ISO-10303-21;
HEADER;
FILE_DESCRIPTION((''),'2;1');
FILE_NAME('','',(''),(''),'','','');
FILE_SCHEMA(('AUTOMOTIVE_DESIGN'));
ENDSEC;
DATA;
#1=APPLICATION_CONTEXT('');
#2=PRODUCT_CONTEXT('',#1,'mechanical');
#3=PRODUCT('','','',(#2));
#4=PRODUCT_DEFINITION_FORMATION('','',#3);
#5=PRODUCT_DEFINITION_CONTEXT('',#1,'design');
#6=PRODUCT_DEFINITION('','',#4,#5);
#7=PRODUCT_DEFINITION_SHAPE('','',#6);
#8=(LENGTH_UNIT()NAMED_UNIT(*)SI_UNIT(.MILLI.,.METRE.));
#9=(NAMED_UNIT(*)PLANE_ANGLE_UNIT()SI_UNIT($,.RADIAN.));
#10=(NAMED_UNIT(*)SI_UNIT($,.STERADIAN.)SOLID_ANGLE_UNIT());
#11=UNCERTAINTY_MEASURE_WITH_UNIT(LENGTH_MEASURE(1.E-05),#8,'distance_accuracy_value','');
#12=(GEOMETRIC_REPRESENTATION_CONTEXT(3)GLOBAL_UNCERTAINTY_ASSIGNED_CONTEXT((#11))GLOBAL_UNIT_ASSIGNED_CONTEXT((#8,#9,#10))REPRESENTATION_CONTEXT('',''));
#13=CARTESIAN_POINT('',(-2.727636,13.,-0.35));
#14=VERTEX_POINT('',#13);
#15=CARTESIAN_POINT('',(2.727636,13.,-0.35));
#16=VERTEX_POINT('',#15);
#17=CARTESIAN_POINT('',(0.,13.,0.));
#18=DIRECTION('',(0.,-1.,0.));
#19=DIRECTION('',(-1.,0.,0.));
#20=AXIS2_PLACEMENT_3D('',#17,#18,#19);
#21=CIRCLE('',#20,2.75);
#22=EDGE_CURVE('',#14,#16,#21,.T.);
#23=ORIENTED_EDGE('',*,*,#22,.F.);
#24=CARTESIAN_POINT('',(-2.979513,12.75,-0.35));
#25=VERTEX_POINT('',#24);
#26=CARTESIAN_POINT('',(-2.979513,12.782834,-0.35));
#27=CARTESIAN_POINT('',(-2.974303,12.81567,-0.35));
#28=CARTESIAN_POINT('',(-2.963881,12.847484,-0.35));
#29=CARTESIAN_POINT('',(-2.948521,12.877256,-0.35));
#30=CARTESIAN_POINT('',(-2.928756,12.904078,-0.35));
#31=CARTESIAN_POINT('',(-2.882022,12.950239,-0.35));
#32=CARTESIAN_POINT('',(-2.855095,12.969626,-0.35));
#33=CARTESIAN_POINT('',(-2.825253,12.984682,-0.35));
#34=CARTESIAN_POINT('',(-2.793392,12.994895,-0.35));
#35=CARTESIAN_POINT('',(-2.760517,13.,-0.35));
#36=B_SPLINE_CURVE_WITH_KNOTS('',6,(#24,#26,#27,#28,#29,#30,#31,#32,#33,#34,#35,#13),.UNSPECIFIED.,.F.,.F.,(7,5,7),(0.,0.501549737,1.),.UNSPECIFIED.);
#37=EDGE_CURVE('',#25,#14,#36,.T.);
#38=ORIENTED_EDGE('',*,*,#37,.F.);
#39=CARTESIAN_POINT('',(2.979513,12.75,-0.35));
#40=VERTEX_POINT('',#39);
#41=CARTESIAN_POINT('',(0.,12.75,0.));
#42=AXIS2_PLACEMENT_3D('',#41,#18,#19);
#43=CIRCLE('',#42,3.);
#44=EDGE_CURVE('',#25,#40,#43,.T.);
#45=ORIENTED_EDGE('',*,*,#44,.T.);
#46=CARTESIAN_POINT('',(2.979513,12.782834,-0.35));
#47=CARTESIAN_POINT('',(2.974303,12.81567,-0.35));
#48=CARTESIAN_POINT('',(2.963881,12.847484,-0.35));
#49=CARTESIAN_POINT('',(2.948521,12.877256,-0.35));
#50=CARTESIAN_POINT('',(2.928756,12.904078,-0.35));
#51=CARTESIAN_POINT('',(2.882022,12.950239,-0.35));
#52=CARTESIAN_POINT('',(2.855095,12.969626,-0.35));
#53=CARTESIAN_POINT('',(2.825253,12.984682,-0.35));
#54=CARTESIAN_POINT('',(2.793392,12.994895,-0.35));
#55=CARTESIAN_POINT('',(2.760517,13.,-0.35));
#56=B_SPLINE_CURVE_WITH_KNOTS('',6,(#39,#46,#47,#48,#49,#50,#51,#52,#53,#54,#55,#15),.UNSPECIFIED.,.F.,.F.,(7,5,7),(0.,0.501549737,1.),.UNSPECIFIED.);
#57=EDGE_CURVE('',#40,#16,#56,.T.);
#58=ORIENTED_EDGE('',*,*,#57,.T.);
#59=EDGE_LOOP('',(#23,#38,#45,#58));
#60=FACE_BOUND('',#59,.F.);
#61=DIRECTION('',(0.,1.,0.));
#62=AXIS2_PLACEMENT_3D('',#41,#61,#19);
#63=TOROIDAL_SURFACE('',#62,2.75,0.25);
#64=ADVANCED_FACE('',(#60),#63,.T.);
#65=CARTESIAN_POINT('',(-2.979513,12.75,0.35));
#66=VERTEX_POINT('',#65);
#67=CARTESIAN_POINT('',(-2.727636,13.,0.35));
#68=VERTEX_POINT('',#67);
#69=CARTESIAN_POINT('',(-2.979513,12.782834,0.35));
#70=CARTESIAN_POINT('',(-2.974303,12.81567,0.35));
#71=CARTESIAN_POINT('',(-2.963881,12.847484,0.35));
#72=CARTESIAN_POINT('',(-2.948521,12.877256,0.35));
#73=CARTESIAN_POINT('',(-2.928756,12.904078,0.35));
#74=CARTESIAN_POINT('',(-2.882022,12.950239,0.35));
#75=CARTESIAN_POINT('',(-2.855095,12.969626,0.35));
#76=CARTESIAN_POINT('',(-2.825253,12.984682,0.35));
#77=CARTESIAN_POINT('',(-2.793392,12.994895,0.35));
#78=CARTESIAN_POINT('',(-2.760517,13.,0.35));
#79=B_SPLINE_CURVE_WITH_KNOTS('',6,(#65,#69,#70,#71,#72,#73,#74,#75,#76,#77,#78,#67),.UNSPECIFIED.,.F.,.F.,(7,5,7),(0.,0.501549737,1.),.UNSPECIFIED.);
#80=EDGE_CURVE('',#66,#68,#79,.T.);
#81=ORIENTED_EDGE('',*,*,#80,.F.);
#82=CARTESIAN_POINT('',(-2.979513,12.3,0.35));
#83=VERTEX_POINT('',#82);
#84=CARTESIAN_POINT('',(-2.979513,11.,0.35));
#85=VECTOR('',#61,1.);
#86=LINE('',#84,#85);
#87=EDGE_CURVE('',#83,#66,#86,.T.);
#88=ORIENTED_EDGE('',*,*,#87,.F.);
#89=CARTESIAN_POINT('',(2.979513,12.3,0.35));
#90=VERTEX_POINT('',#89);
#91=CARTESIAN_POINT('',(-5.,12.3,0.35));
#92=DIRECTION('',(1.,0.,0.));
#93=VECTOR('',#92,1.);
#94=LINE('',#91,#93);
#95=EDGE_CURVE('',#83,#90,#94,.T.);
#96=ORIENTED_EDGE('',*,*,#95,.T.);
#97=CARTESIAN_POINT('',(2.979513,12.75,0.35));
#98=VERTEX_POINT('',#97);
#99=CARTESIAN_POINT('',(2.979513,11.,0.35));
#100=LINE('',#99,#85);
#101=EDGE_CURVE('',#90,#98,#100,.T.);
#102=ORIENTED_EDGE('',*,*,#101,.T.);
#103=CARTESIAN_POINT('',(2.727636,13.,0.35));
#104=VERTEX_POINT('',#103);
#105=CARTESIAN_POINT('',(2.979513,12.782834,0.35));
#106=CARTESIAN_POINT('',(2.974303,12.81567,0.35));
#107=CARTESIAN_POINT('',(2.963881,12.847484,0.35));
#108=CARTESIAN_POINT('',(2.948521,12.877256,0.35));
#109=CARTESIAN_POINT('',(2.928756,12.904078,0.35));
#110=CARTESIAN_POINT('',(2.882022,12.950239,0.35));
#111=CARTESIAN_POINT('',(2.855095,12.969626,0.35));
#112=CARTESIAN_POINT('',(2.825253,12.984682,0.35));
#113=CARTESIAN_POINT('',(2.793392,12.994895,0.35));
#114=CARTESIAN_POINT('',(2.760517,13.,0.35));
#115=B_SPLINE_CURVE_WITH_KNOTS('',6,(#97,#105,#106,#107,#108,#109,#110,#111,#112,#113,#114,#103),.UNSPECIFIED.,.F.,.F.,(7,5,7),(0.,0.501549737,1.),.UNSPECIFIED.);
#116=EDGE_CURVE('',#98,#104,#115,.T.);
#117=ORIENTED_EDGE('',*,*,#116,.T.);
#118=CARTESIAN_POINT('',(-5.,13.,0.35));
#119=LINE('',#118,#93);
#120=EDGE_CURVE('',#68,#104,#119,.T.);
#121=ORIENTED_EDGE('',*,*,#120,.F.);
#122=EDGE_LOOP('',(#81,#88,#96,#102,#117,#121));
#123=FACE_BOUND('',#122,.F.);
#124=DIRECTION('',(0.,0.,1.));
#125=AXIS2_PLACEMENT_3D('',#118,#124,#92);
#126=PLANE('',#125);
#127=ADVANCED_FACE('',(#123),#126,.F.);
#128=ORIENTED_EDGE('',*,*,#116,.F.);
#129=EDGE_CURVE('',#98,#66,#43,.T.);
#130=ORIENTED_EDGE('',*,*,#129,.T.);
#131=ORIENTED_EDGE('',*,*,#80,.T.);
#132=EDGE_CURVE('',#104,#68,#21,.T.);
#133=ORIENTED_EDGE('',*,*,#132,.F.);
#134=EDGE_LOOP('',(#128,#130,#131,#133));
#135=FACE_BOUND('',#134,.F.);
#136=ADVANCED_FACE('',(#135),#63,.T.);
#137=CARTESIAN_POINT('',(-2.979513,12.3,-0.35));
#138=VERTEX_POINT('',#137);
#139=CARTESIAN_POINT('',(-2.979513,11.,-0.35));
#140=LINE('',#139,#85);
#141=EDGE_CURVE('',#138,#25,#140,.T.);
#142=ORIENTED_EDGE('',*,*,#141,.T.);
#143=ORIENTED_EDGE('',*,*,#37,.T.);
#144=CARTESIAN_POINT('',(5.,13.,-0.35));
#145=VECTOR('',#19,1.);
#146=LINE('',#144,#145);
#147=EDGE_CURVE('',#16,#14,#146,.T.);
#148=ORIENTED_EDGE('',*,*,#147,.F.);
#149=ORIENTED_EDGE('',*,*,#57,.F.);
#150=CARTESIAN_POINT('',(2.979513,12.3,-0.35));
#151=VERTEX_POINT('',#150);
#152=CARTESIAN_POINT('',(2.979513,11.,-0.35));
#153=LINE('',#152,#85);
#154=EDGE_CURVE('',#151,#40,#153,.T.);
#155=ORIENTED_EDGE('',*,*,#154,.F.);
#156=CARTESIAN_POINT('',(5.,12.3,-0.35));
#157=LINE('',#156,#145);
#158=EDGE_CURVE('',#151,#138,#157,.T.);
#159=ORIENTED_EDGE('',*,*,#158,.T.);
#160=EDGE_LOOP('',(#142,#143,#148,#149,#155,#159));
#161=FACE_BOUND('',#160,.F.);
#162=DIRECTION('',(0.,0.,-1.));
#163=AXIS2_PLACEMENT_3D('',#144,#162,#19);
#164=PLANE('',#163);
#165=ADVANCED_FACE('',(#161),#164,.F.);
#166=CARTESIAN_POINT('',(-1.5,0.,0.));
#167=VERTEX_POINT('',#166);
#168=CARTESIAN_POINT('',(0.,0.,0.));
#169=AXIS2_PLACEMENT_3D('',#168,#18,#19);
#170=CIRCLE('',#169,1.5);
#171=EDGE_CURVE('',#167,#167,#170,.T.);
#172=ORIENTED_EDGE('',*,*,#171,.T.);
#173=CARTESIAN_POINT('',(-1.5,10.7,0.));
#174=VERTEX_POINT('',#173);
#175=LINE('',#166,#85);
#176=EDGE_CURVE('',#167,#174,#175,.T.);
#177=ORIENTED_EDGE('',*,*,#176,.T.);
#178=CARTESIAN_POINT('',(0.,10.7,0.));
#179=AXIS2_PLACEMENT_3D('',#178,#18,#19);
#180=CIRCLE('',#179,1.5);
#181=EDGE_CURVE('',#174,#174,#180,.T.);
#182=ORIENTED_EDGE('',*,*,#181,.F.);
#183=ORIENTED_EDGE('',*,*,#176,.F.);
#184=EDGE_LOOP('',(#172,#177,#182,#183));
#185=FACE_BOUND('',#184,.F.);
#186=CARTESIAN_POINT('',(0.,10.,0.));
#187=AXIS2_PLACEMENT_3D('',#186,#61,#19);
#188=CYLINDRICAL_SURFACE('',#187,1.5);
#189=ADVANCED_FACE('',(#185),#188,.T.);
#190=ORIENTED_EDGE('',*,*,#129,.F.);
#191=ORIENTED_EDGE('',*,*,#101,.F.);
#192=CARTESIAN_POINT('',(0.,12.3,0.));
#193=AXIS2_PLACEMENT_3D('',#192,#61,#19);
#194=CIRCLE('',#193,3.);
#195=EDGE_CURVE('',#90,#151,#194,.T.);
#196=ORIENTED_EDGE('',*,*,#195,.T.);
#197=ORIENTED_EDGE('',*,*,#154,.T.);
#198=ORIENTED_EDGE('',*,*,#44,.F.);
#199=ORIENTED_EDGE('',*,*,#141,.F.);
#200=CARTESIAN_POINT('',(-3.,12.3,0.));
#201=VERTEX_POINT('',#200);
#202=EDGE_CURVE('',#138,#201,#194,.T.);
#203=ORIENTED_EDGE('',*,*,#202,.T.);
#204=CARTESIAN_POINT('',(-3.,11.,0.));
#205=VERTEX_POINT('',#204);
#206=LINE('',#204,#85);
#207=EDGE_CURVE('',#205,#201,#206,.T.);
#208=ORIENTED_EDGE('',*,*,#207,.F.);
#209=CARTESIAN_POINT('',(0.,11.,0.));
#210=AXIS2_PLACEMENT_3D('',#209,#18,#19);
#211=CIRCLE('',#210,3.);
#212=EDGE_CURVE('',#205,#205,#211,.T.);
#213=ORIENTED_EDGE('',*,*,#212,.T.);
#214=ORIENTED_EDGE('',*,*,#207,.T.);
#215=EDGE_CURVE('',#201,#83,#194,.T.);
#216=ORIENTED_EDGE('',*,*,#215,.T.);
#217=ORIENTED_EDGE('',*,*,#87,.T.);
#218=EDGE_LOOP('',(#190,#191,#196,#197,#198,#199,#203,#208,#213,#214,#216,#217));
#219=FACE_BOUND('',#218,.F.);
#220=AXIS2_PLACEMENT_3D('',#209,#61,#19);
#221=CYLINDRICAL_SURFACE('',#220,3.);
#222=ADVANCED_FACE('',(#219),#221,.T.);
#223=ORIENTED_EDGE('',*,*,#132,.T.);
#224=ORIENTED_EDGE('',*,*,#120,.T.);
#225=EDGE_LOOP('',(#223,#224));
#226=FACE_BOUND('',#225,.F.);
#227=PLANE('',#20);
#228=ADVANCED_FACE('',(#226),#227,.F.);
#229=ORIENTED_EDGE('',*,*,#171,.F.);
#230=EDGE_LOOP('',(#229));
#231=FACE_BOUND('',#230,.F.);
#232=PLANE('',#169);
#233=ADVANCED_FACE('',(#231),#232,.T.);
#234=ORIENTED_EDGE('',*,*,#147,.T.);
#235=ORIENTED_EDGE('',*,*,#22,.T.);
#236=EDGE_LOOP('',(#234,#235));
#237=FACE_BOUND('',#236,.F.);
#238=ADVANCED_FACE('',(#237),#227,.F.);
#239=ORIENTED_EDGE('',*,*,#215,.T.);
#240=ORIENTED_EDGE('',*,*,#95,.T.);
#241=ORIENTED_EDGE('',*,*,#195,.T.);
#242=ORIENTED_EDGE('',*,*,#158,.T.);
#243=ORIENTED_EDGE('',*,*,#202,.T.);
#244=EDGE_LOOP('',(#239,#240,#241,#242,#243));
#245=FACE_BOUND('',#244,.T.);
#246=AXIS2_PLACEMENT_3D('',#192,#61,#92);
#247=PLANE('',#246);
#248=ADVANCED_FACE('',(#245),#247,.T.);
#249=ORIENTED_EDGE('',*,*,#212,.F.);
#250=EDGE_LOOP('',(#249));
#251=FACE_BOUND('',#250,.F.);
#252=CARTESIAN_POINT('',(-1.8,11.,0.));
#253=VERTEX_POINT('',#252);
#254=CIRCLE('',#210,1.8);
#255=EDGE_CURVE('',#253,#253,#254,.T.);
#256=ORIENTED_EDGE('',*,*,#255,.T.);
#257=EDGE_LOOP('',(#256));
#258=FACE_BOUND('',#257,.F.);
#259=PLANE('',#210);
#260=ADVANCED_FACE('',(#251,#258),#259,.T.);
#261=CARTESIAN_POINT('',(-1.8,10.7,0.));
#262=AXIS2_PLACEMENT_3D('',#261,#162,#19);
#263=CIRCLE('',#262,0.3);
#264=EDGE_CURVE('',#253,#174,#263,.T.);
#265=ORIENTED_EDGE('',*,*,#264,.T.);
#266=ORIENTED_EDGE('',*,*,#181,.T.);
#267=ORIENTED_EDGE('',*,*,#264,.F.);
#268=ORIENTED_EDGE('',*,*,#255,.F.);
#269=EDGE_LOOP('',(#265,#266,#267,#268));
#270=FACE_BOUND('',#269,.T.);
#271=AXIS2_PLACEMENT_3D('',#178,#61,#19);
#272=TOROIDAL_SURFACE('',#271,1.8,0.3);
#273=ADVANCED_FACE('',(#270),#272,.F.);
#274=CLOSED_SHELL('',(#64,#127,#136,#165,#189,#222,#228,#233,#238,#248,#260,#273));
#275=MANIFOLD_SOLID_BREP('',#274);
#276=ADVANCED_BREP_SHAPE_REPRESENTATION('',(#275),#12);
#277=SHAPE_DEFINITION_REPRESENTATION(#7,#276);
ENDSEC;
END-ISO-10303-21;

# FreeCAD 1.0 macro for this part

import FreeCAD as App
import Part
import Sketcher
from FreeCAD import Vector


def edges_at(feature, points):
    """Names of the edges that pass closest to the given points."""
    edges = feature.Shape.Edges
    near = lambda p: min(range(len(edges)), key=lambda i: edges[i].distToShape(Part.Vertex(*p))[0])
    return sorted({f"Edge{near(p) + 1}" for p in points})

doc = App.newDocument("Part")
body = doc.addObject("PartDesign::Body", "Body")

# Sketch on XY plane
sketch1 = doc.addObject("Sketcher::SketchObject", "Sketch")
body.addObject(sketch1)
sketch1.AttachmentSupport = (doc.XY_Plane, [""])
sketch1.MapMode = "FlatFace"
sketch1.addGeometry([
    Part.LineSegment(Vector(-1.5, 0, 0), Vector(0, 0, 0)),  # 0
    Part.LineSegment(Vector(0, 0, 0), Vector(0, 13, 0)),  # 1
    Part.LineSegment(Vector(0, 13, 0), Vector(-3, 13, 0)),  # 2
    Part.LineSegment(Vector(-3, 13, 0), Vector(-3, 11, 0)),  # 3
    Part.LineSegment(Vector(-3, 11, 0), Vector(-1.5, 11, 0)),  # 4
    Part.LineSegment(Vector(-1.5, 11, 0), Vector(-1.5, 0, 0)),  # 5
], False)
sketch1.addConstraint([
    Sketcher.Constraint("Coincident", 0, 2, 1, 1),
    Sketcher.Constraint("Coincident", 1, 2, 2, 1),
    Sketcher.Constraint("Coincident", 2, 2, 3, 1),
    Sketcher.Constraint("Coincident", 3, 2, 4, 1),
    Sketcher.Constraint("Coincident", 4, 2, 5, 1),
    Sketcher.Constraint("Coincident", 5, 2, 0, 1),
    Sketcher.Constraint("Horizontal", 0),
    Sketcher.Constraint("Vertical", 1),
    Sketcher.Constraint("Horizontal", 2),
    Sketcher.Constraint("Vertical", 3),
    Sketcher.Constraint("Horizontal", 4),
    Sketcher.Constraint("Vertical", 5),
    Sketcher.Constraint("Coincident", 0, 2, -1, 1),
    Sketcher.Constraint("Equal", 0, 4),
    Sketcher.Constraint("DistanceX", 2, 2, 2, 1, 3.0),
    Sketcher.Constraint("DistanceY", 1, 1, 1, 2, 13.0),
    Sketcher.Constraint("DistanceY", 3, 2, 3, 1, 2.0),
])
revolution = doc.addObject("PartDesign::Revolution", "Revolution")
body.addObject(revolution)
revolution.Profile = sketch1
revolution.ReferenceAxis = (sketch1, ["V_Axis"])
revolution.Angle = 360
doc.recompute()

fillet = doc.addObject("PartDesign::Fillet", "Fillet")
body.addObject(fillet)
fillet.Base = (revolution, edges_at(revolution, [(3, 13, 0)]))
fillet.Radius = 0.25

# Sketch on XZ plane
sketch2 = doc.addObject("Sketcher::SketchObject", "Sketch001")
body.addObject(sketch2)
sketch2.AttachmentSupport = (doc.XZ_Plane, [""])
sketch2.MapMode = "FlatFace"
sketch2.AttachmentOffset = App.Placement(Vector(0, 0, -13), App.Rotation())
sketch2.addGeometry([
    Part.LineSegment(Vector(5, 0.35, 0), Vector(5, -0.35, 0)),
    Part.LineSegment(Vector(5, -0.35, 0), Vector(-5, -0.35, 0)),
    Part.LineSegment(Vector(-5, -0.35, 0), Vector(-5, 0.35, 0)),
    Part.LineSegment(Vector(-5, 0.35, 0), Vector(5, 0.35, 0)),
], False)
sketch2.addConstraint([
    Sketcher.Constraint("Coincident", 0, 2, 1, 1),
    Sketcher.Constraint("Coincident", 1, 2, 2, 1),
    Sketcher.Constraint("Coincident", 2, 2, 3, 1),
    Sketcher.Constraint("Coincident", 3, 2, 0, 1),
    Sketcher.Constraint("Vertical", 0),
    Sketcher.Constraint("Horizontal", 1),
    Sketcher.Constraint("Vertical", 2),
    Sketcher.Constraint("Horizontal", 3),
    Sketcher.Constraint("Symmetric", 0, 2, 2, 2, -1, 1),
    Sketcher.Constraint("DistanceX", 1, 2, 1, 1, 10.0),
    Sketcher.Constraint("DistanceY", 0, 2, 0, 1, 0.7),
])
pocket1 = doc.addObject("PartDesign::Pocket", "Pocket")
body.addObject(pocket1)
pocket1.Profile = sketch2
pocket1.Length = 0.7
pocket1.Reversed = True
doc.recompute()

fillet2 = doc.addObject("PartDesign::Fillet", "Fillet001")
body.addObject(fillet2)
fillet2.Base = (pocket1, edges_at(pocket1, [(1.5, 11, 0)]))
fillet2.Radius = 0.3

doc.recompute()
